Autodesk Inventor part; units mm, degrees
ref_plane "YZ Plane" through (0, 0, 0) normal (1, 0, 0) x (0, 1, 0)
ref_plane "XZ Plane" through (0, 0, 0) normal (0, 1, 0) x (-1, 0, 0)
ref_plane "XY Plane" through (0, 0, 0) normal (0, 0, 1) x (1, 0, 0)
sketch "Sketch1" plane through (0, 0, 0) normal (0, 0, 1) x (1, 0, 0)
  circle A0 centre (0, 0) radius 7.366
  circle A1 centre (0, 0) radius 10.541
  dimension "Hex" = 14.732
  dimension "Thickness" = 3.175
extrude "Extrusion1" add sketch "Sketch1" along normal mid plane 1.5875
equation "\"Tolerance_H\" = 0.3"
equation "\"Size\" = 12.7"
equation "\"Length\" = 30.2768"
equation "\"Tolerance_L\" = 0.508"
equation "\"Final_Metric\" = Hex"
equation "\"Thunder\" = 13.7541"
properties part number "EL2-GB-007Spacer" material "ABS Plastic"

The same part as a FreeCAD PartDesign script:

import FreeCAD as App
import Part
import Sketcher
Q = App.Units.Quantity

doc = App.newDocument("Part")
body = doc.addObject("PartDesign::Body", "Body")

sketch1 = doc.addObject("Sketcher::SketchObject", "Sketch")
body.addObject(sketch1)
sketch1.AttachmentSupport = (doc.XY_Plane, [""])
sketch1.MapMode = "FlatFace"
sketch1.addGeometry(Part.Circle(App.Vector(0, 0, 0), App.Vector(0, 0, 1), 11), False)
sketch1.addGeometry(Part.Circle(App.Vector(0, 0, 0), App.Vector(0, 0, 1), 7), False)
sketch1.addConstraint(Sketcher.Constraint("Coincident", 0, 3, -1, 1))
sketch1.addConstraint(Sketcher.Constraint("Coincident", 1, 3, -1, 1))
sketch1.addConstraint(Sketcher.Constraint("Diameter", 1, Q("0.58 in")))
sketch1.addConstraint(Sketcher.Constraint("Diameter", 0, Q("0.83 in")))
pad1 = doc.addObject("PartDesign::Pad", "Pad")
body.addObject(pad1)
pad1.Profile = sketch1
pad1.Length = Q("0.0625 in")
pad1.Midplane = True

doc.recompute()
